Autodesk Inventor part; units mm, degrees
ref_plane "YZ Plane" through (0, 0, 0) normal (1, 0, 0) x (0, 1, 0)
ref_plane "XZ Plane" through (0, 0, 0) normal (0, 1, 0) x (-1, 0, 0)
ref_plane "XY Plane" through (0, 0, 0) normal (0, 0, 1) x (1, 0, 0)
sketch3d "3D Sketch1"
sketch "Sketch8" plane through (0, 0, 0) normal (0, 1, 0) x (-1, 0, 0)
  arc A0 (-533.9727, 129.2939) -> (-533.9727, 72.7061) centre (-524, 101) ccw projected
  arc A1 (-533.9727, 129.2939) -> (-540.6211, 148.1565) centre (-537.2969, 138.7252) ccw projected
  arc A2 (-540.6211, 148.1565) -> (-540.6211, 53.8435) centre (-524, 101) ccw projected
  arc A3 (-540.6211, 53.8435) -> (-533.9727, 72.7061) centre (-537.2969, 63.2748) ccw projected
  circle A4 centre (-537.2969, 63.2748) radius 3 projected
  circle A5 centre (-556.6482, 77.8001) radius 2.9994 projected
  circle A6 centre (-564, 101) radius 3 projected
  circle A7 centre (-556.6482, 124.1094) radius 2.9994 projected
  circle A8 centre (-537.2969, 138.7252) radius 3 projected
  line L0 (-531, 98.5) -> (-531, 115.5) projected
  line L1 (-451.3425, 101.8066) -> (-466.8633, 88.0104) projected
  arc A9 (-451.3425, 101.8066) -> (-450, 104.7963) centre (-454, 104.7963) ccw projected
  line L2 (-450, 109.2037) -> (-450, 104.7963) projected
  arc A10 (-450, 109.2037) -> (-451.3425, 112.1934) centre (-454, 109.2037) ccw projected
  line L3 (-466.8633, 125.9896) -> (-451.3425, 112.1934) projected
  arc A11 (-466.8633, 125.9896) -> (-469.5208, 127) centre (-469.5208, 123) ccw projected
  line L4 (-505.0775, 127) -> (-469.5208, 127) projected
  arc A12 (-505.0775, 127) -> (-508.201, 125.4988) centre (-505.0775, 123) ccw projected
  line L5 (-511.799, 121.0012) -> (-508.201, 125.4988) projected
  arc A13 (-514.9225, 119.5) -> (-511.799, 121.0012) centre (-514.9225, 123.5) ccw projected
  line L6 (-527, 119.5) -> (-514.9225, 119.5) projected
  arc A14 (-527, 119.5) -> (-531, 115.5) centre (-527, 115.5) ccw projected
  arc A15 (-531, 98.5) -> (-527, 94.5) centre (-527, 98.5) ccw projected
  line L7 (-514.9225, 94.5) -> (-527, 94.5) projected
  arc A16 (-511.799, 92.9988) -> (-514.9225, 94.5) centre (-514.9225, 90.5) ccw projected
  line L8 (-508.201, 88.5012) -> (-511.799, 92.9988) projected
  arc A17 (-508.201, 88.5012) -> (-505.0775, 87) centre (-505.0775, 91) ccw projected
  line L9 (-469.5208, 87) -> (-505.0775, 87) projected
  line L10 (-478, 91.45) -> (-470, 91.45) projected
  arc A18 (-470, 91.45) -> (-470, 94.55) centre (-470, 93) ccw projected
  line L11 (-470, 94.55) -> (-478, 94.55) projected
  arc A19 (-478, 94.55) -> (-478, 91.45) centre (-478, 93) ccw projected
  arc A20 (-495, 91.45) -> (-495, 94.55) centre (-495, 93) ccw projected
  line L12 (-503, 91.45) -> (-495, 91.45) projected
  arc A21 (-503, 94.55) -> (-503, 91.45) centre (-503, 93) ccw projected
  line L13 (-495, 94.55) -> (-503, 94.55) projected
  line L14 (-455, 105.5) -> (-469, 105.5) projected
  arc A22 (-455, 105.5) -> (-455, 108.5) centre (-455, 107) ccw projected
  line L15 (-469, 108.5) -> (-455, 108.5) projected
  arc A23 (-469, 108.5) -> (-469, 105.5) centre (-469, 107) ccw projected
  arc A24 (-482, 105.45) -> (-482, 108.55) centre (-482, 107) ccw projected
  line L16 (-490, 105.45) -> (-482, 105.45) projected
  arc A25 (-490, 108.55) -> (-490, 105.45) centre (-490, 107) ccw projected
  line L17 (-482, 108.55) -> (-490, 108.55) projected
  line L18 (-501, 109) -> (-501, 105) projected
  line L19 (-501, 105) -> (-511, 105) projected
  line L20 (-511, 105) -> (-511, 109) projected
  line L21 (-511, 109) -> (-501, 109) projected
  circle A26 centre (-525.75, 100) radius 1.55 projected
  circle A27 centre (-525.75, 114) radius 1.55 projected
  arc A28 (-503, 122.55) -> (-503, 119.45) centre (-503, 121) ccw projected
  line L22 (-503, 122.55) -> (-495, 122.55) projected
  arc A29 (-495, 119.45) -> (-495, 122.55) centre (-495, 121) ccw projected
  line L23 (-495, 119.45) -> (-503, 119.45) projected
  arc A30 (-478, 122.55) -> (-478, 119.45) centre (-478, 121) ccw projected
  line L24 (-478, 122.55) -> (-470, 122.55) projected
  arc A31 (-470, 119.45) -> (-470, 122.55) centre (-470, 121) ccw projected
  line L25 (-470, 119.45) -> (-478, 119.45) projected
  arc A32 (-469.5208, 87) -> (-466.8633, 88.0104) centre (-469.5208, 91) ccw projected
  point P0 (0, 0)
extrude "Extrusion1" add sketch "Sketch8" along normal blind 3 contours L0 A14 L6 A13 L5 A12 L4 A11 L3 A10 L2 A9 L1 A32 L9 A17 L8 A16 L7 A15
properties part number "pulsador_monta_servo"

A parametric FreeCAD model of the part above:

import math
import FreeCAD as App
import Part
import Sketcher
Q = App.Units.Quantity

doc = App.newDocument("Part")
body = doc.addObject("PartDesign::Body", "Body")

# Sketch on XZ plane
sketch1 = doc.addObject("Sketcher::SketchObject", "Sketch")
body.addObject(sketch1)
sketch1.AttachmentSupport = (doc.XZ_Plane, [""])
sketch1.MapMode = "FlatFace"
sketch1.addGeometry([
    Part.LineSegment(App.Vector(531, 115.5, 0), App.Vector(531, 98.5, 0)),  # 0
    Part.ArcOfCircle(Part.Circle(App.Vector(527, 98.5, 0), App.Vector(0, 0, 1), 4), math.radians(-90), math.radians(0)),  # 1
    Part.LineSegment(App.Vector(527, 94.5, 0), App.Vector(514.9225, 94.5, 0)),  # 2
    Part.ArcOfCircle(Part.Circle(App.Vector(514.9225, 90.5, 0), App.Vector(0, 0, 1), 4.000032), math.radians(90), math.radians(141.340192)),  # 3
    Part.LineSegment(App.Vector(511.799, 92.9988, 0), App.Vector(508.201, 88.5012, 0)),  # 4
    Part.ArcOfCircle(Part.Circle(App.Vector(505.0775, 91, 0), App.Vector(0, 0, 1), 4.000032), math.radians(-90), math.radians(-38.659808)),  # 5
    Part.LineSegment(App.Vector(505.0775, 87, 0), App.Vector(469.5208, 87, 0)),  # 6
    Part.ArcOfCircle(Part.Circle(App.Vector(469.5208, 91, 0), App.Vector(0, 0, 1), 4), math.radians(-131.634372), math.radians(-90)),  # 7
    Part.LineSegment(App.Vector(466.8633, 88.0104, 0), App.Vector(451.3425, 101.8066, 0)),  # 8
    Part.ArcOfCircle(Part.Circle(App.Vector(454, 104.7963, 0), App.Vector(0, 0, 1), 4.000077), math.radians(180), math.radians(228.36658)),  # 9
    Part.LineSegment(App.Vector(450, 104.7963, 0), App.Vector(450, 109.2037, 0)),  # 10
    Part.ArcOfCircle(Part.Circle(App.Vector(454, 109.2037, 0), App.Vector(0, 0, 1), 4), math.radians(131.63342), math.radians(180)),  # 11
    Part.LineSegment(App.Vector(451.3425, 112.1934, 0), App.Vector(466.8633, 125.9896, 0)),  # 12
    Part.ArcOfCircle(Part.Circle(App.Vector(469.5208, 123, 0), App.Vector(0, 0, 1), 4.000002), math.radians(90), math.radians(131.634372)),  # 13
    Part.LineSegment(App.Vector(469.5208, 127, 0), App.Vector(505.0775, 127, 0)),  # 14
    Part.ArcOfCircle(Part.Circle(App.Vector(505.0775, 123, 0), App.Vector(0, 0, 1), 4), math.radians(38.659808), math.radians(90)),  # 15
    Part.LineSegment(App.Vector(508.201, 125.4988, 0), App.Vector(511.799, 121.0012, 0)),  # 16
    Part.ArcOfCircle(Part.Circle(App.Vector(514.9225, 123.5, 0), App.Vector(0, 0, 1), 4), math.radians(-141.340192), math.radians(-90)),  # 17
    Part.LineSegment(App.Vector(514.9225, 119.5, 0), App.Vector(527, 119.5, 0)),  # 18
    Part.ArcOfCircle(Part.Circle(App.Vector(527, 115.5, 0), App.Vector(0, 0, 1), 4), math.radians(0), math.radians(90)),  # 19
    Part.Circle(App.Vector(525.75, 100, 0), App.Vector(0, 0, 1), 1.55),  # 20
    Part.ArcOfCircle(Part.Circle(App.Vector(495, 93, 0), App.Vector(0, 0, 1), 1.55), math.radians(90), math.radians(270)),  # 21
    Part.LineSegment(App.Vector(495, 91.45, 0), App.Vector(503, 91.45, 0)),  # 22
    Part.ArcOfCircle(Part.Circle(App.Vector(503, 93, 0), App.Vector(0, 0, 1), 1.55), math.radians(-90), math.radians(90)),  # 23
    Part.LineSegment(App.Vector(503, 94.55, 0), App.Vector(495, 94.55, 0)),  # 24
    Part.LineSegment(App.Vector(470, 91.45, 0), App.Vector(478, 91.45, 0)),  # 25
    Part.ArcOfCircle(Part.Circle(App.Vector(478, 93, 0), App.Vector(0, 0, 1), 1.55), math.radians(-90), math.radians(90)),  # 26
    Part.LineSegment(App.Vector(478, 94.55, 0), App.Vector(470, 94.55, 0)),  # 27
    Part.ArcOfCircle(Part.Circle(App.Vector(470, 93, 0), App.Vector(0, 0, 1), 1.55), math.radians(90), math.radians(270)),  # 28
    Part.Circle(App.Vector(525.75, 114, 0), App.Vector(0, 0, 1), 1.55),  # 29
    Part.LineSegment(App.Vector(511, 109, 0), App.Vector(501, 109, 0)),  # 30
    Part.LineSegment(App.Vector(501, 109, 0), App.Vector(501, 105, 0)),  # 31
    Part.LineSegment(App.Vector(501, 105, 0), App.Vector(511, 105, 0)),  # 32
    Part.LineSegment(App.Vector(511, 105, 0), App.Vector(511, 109, 0)),  # 33
    Part.ArcOfCircle(Part.Circle(App.Vector(482, 107, 0), App.Vector(0, 0, 1), 1.55), math.radians(90), math.radians(270)),  # 34
    Part.LineSegment(App.Vector(482, 105.45, 0), App.Vector(490, 105.45, 0)),  # 35
    Part.ArcOfCircle(Part.Circle(App.Vector(490, 107, 0), App.Vector(0, 0, 1), 1.55), math.radians(-90), math.radians(90)),  # 36
    Part.LineSegment(App.Vector(490, 108.55, 0), App.Vector(482, 108.55, 0)),  # 37
    Part.ArcOfCircle(Part.Circle(App.Vector(503, 121, 0), App.Vector(0, 0, 1), 1.55), math.radians(-90), math.radians(90)),  # 38
    Part.LineSegment(App.Vector(503, 122.55, 0), App.Vector(495, 122.55, 0)),  # 39
    Part.ArcOfCircle(Part.Circle(App.Vector(495, 121, 0), App.Vector(0, 0, 1), 1.55), math.radians(90), math.radians(270)),  # 40
    Part.LineSegment(App.Vector(495, 119.45, 0), App.Vector(503, 119.45, 0)),  # 41
    Part.ArcOfCircle(Part.Circle(App.Vector(455, 107, 0), App.Vector(0, 0, 1), 1.5), math.radians(90), math.radians(270)),  # 42
    Part.LineSegment(App.Vector(455, 105.5, 0), App.Vector(469, 105.5, 0)),  # 43
    Part.ArcOfCircle(Part.Circle(App.Vector(469, 107, 0), App.Vector(0, 0, 1), 1.5), math.radians(-90), math.radians(90)),  # 44
    Part.LineSegment(App.Vector(469, 108.5, 0), App.Vector(455, 108.5, 0)),  # 45
    Part.ArcOfCircle(Part.Circle(App.Vector(478, 121, 0), App.Vector(0, 0, 1), 1.55), math.radians(-90), math.radians(90)),  # 46
    Part.LineSegment(App.Vector(478, 122.55, 0), App.Vector(470, 122.55, 0)),  # 47
    Part.ArcOfCircle(Part.Circle(App.Vector(470, 121, 0), App.Vector(0, 0, 1), 1.55), math.radians(90), math.radians(270)),  # 48
    Part.LineSegment(App.Vector(470, 119.45, 0), App.Vector(478, 119.45, 0)),  # 49
], False)
sketch1.addConstraint([
    Sketcher.Constraint("Tangent", 0, 2, 1, 2),
    Sketcher.Constraint("Tangent", 1, 1, 2, 1),
    Sketcher.Constraint("Tangent", 2, 2, 3, 1),
    Sketcher.Constraint("Tangent", 3, 2, 4, 1),
    Sketcher.Constraint("Tangent", 4, 2, 5, 2),
    Sketcher.Constraint("Tangent", 5, 1, 6, 1),
    Sketcher.Constraint("Tangent", 6, 2, 7, 2),
    Sketcher.Constraint("Tangent", 7, 1, 8, 1),
    Sketcher.Constraint("Tangent", 8, 2, 9, 2),
    Sketcher.Constraint("Tangent", 9, 1, 10, 1),
    Sketcher.Constraint("Tangent", 10, 2, 11, 2),
    Sketcher.Constraint("Tangent", 11, 1, 12, 1),
    Sketcher.Constraint("Tangent", 12, 2, 13, 2),
    Sketcher.Constraint("Tangent", 13, 1, 14, 1),
    Sketcher.Constraint("Tangent", 14, 2, 15, 2),
    Sketcher.Constraint("Tangent", 15, 1, 16, 1),
    Sketcher.Constraint("Tangent", 16, 2, 17, 1),
    Sketcher.Constraint("Tangent", 17, 2, 18, 1),
    Sketcher.Constraint("Tangent", 18, 2, 19, 2),
    Sketcher.Constraint("Tangent", 19, 1, 0, 1),
    Sketcher.Constraint("Tangent", 21, 2, 22, 1),
    Sketcher.Constraint("Tangent", 22, 2, 23, 1),
    Sketcher.Constraint("Tangent", 23, 2, 24, 1),
    Sketcher.Constraint("Tangent", 24, 2, 21, 1),
    Sketcher.Constraint("Tangent", 25, 2, 26, 1),
    Sketcher.Constraint("Tangent", 26, 2, 27, 1),
    Sketcher.Constraint("Tangent", 27, 2, 28, 1),
    Sketcher.Constraint("Tangent", 28, 2, 25, 1),
    Sketcher.Constraint("Coincident", 30, 2, 31, 1),
    Sketcher.Constraint("Coincident", 31, 2, 32, 1),
    Sketcher.Constraint("Coincident", 32, 2, 33, 1),
    Sketcher.Constraint("Coincident", 33, 2, 30, 1),
    Sketcher.Constraint("Tangent", 34, 2, 35, 1),
    Sketcher.Constraint("Tangent", 35, 2, 36, 1),
    Sketcher.Constraint("Tangent", 36, 2, 37, 1),
    Sketcher.Constraint("Tangent", 37, 2, 34, 1),
    Sketcher.Constraint("Tangent", 38, 2, 39, 1),
    Sketcher.Constraint("Tangent", 39, 2, 40, 1),
    Sketcher.Constraint("Tangent", 40, 2, 41, 1),
    Sketcher.Constraint("Tangent", 41, 2, 38, 1),
    Sketcher.Constraint("Tangent", 42, 2, 43, 1),
    Sketcher.Constraint("Tangent", 43, 2, 44, 1),
    Sketcher.Constraint("Tangent", 44, 2, 45, 1),
    Sketcher.Constraint("Tangent", 45, 2, 42, 1),
    Sketcher.Constraint("Tangent", 46, 2, 47, 1),
    Sketcher.Constraint("Tangent", 47, 2, 48, 1),
    Sketcher.Constraint("Tangent", 48, 2, 49, 1),
    Sketcher.Constraint("Tangent", 49, 2, 46, 1),
    Sketcher.Constraint("Vertical", 0),
    Sketcher.Constraint("Horizontal", 2),
    Sketcher.Constraint("Horizontal", 6),
    Sketcher.Constraint("Vertical", 10),
    Sketcher.Constraint("Horizontal", 14),
    Sketcher.Constraint("Horizontal", 18),
    Sketcher.Constraint("Horizontal", 22),
    Sketcher.Constraint("Horizontal", 24),
    Sketcher.Constraint("Horizontal", 25),
    Sketcher.Constraint("Horizontal", 27),
    Sketcher.Constraint("Horizontal", 30),
    Sketcher.Constraint("Vertical", 31),
    Sketcher.Constraint("Horizontal", 32),
    Sketcher.Constraint("Vertical", 33),
    Sketcher.Constraint("Horizontal", 35),
    Sketcher.Constraint("Horizontal", 37),
    Sketcher.Constraint("Horizontal", 39),
    Sketcher.Constraint("Horizontal", 41),
    Sketcher.Constraint("Horizontal", 43),
    Sketcher.Constraint("Horizontal", 45),
    Sketcher.Constraint("Horizontal", 47),
    Sketcher.Constraint("Horizontal", 49),
    Sketcher.Constraint("Equal", 1, 3),
    Sketcher.Constraint("Equal", 3, 5),
    Sketcher.Constraint("Equal", 5, 7),
    Sketcher.Constraint("Equal", 7, 9),
    Sketcher.Constraint("Equal", 9, 11),
    Sketcher.Constraint("Equal", 11, 13),
    Sketcher.Constraint("Equal", 13, 15),
    Sketcher.Constraint("Equal", 15, 17),
    Sketcher.Constraint("Equal", 17, 19),
    Sketcher.Constraint("Equal", 20, 21),
    Sketcher.Constraint("Equal", 23, 26),
    Sketcher.Constraint("Equal", 28, 29),
    Sketcher.Constraint("Equal", 29, 34),
    Sketcher.Constraint("Equal", 36, 38),
    Sketcher.Constraint("Equal", 40, 46),
    Sketcher.Constraint("Horizontal", 23, 3, 26, 3),
    Sketcher.Constraint("Horizontal", 36, 3, 42, 3),
    Sketcher.Constraint("Horizontal", 40, 3, 46, 3),
    Sketcher.Constraint("Vertical", 7, 3, 13, 3),
    Sketcher.Constraint("Vertical", 5, 3, 15, 3),
    Sketcher.Constraint("Vertical", 3, 3, 17, 3),
    Sketcher.Constraint("Vertical", 20, 3, 29, 3),
    Sketcher.Constraint("Vertical", 23, 3, 38, 3),
    Sketcher.Constraint("Vertical", 21, 3, 40, 3),
    Sketcher.Constraint("Vertical", 26, 3, 46, 3),
    Sketcher.Constraint("Vertical", 28, 3, 48, 3),
    Sketcher.Constraint("Vertical", 8, 2, 11, 1),
    Sketcher.Constraint("Vertical", 4, 2, 15, 1),
    Sketcher.Constraint("Equal", 24, 25),
    Sketcher.Constraint("Equal", 27, 35),
    Sketcher.Constraint("Radius", 1, 4.0),
    Sketcher.Constraint("Diameter", 20, 3.1),
    Sketcher.Constraint("Radius", 42, 1.5),
    Sketcher.Constraint("DistanceX", 22, 1, 22, 2, 8.0),
    Sketcher.Constraint("DistanceX", 30, 2, 30, 1, 10.0),
    Sketcher.Constraint("DistanceX", 43, 1, 43, 2, 14.0),
    Sketcher.Constraint("DistanceY", 0, 2, 0, 1, 17.0),
    Sketcher.Constraint("DistanceY", 31, 2, 31, 1, 4.0),
    Sketcher.Constraint("DistanceX", -1, 1, 1, 3, 527.0),
    Sketcher.Constraint("DistanceY", -1, 1, 5, 3, 91.0),
    Sketcher.Constraint("DistanceX", -1, 1, 9, 3, 454.0),
    Sketcher.Constraint("DistanceY", -1, 1, 13, 3, 123.0),
    Sketcher.Constraint("DistanceY", -1, 1, 20, 3, 100.0),
    Sketcher.Constraint("DistanceX", -1, 1, 21, 3, 495.0),
    Sketcher.Constraint("DistanceY", -1, 1, 21, 3, 93.0),
    Sketcher.Constraint("DistanceX", -1, 1, 26, 3, 478.0),
    Sketcher.Constraint("DistanceY", -1, 1, 29, 3, 114.0),
    Sketcher.Constraint("DistanceX", -1, 1, 34, 3, 482.0),
    Sketcher.Constraint("DistanceY", -1, 1, 34, 3, 107.0),
    Sketcher.Constraint("DistanceY", -1, 1, 38, 3, 121.0),
    Sketcher.Constraint("DistanceX", -1, 1, 42, 3, 455.0),
    Sketcher.Constraint("DistanceX", -1, 1, 30, 2, 501.0),
    Sketcher.Constraint("DistanceY", -1, 1, 30, 2, 109.0),
    Sketcher.Constraint("Angle", 4, Q("-128.6592 deg")),
    Sketcher.Constraint("DistanceX", -1, 1, 20, 3, 525.75),
    Sketcher.Constraint("Distance", 8, 20.766),
    Sketcher.Constraint("DistanceX", 2, 2, 2, 1, 12.0775),
    Sketcher.Constraint("DistanceX", 6, 2, 6, 1, 35.5567),
])
pad1 = doc.addObject("PartDesign::Pad", "Pad")
body.addObject(pad1)
pad1.Profile = sketch1
pad1.Length = 3
pad1.Reversed = True

doc.recompute()
